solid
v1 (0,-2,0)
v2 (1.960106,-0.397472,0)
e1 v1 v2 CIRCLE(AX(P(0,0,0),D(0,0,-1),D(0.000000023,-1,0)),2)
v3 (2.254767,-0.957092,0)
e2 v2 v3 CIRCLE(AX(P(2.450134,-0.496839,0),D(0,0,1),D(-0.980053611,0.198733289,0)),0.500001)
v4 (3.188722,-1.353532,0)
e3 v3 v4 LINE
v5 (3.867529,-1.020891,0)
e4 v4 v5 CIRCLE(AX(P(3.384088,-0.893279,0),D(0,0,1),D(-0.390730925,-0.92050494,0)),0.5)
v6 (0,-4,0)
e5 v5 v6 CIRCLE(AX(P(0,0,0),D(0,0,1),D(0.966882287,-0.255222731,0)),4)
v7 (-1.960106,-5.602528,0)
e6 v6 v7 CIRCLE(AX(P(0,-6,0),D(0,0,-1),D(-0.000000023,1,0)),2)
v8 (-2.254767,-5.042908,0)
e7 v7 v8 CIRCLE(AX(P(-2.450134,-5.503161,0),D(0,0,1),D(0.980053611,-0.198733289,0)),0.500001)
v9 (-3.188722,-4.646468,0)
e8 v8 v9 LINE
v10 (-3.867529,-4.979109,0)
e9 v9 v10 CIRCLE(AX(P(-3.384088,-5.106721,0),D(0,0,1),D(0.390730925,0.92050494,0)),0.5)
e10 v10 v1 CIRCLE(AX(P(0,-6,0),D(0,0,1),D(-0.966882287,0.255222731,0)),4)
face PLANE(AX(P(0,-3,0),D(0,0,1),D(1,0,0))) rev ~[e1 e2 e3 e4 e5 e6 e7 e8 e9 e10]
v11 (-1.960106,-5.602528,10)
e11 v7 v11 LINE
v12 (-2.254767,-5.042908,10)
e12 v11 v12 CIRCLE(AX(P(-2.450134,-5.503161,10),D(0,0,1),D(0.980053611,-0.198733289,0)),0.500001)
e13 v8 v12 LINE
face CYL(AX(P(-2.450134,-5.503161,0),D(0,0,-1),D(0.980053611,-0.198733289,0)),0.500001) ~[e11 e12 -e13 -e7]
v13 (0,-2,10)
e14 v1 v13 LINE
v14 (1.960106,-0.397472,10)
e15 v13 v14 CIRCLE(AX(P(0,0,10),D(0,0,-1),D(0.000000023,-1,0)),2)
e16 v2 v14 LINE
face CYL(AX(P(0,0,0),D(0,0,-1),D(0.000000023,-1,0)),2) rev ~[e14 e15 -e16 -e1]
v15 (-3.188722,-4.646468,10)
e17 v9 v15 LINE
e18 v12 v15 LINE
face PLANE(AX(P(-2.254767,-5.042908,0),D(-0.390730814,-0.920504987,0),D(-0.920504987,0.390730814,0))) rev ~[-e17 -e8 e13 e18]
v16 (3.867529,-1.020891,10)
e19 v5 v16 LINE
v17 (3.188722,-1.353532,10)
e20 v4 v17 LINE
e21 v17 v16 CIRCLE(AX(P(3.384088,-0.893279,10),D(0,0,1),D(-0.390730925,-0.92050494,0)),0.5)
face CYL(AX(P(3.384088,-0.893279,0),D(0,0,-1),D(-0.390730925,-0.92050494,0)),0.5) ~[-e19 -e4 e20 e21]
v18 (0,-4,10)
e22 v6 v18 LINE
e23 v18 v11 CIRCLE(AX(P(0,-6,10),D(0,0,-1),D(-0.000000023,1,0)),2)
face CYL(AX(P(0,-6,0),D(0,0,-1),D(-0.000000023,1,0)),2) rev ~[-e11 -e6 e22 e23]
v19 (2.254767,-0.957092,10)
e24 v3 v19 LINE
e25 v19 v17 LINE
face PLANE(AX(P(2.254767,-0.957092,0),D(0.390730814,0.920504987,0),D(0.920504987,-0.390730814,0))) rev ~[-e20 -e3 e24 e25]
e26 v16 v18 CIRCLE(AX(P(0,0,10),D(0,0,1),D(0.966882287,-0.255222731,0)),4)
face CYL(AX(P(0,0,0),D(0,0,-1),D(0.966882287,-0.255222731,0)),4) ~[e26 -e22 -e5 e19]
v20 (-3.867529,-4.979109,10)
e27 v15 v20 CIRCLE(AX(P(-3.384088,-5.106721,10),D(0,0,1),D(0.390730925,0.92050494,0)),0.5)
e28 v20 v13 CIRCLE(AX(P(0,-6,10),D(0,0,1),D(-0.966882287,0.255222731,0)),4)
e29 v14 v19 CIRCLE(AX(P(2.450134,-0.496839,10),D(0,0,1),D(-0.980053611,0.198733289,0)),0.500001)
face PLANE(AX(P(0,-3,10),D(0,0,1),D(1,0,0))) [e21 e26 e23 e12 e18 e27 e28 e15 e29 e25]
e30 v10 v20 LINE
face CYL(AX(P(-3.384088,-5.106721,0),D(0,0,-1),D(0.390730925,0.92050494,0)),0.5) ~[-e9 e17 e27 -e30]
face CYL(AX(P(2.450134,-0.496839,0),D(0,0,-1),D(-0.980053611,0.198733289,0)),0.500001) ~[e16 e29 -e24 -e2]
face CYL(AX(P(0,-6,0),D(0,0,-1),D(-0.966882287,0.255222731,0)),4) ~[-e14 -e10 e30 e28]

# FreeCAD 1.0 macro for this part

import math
import FreeCAD as App
import Part
import Sketcher
Q = App.Units.Quantity

doc = App.newDocument("Part")
body = doc.addObject("PartDesign::Body", "Body")

# Sketch on XY plane
sketch1 = body.newObject("Sketcher::SketchObject", "Sketch")
sketch1.AttachmentSupport = (doc.getObject("XY_Plane"), [""])
sketch1.MapMode = "FlatFace"
sketch1.addGeometry(Part.ArcOfCircle(Part.Circle(App.Vector(0, 0, 0), App.Vector(0, 0, 1), 2), math.radians(-11), math.radians(270)), False)
sketch1.addGeometry(Part.ArcOfCircle(Part.Circle(App.Vector(2.5, -0.5, 0), App.Vector(0, 0, 1), 0.5), math.radians(169), math.radians(247)), False)
sketch1.addGeometry(Part.LineSegment(App.Vector(2.3, -1, 0), App.Vector(3.2, -1.4, 0)), False)
sketch1.addGeometry(Part.ArcOfCircle(Part.Circle(App.Vector(3.4, -0.9, 0), App.Vector(0, 0, 1), 0.5), math.radians(-113), math.radians(-15)), False)
sketch1.addGeometry(Part.ArcOfCircle(Part.Circle(App.Vector(0, 0, 0), App.Vector(0, 0, 1), 4), math.radians(-15), math.radians(270)), False)
sketch1.addGeometry(Part.ArcOfCircle(Part.Circle(App.Vector(0, -6, 0), App.Vector(0, 0, 1), 2), math.radians(169), math.radians(450)), False)
sketch1.addGeometry(Part.ArcOfCircle(Part.Circle(App.Vector(-2.5, -5.5, 0), App.Vector(0, 0, 1), 0.5), math.radians(-11), math.radians(67)), False)
sketch1.addGeometry(Part.LineSegment(App.Vector(-2.3, -5, 0), App.Vector(-3.2, -4.6, 0)), False)
sketch1.addGeometry(Part.ArcOfCircle(Part.Circle(App.Vector(-3.4, -5.1, 0), App.Vector(0, 0, 1), 0.5), math.radians(67), math.radians(165)), False)
sketch1.addGeometry(Part.ArcOfCircle(Part.Circle(App.Vector(0, -6, 0), App.Vector(0, 0, 1), 4), math.radians(165), math.radians(450)), False)
sketch1.addConstraint(Sketcher.Constraint("Coincident", 0, 1, 1, 1))
sketch1.addConstraint(Sketcher.Constraint("Coincident", 1, 2, 2, 1))
sketch1.addConstraint(Sketcher.Constraint("Tangent", 2, 2, 3, 1))
sketch1.addConstraint(Sketcher.Constraint("Tangent", 3, 2, 4, 1))
sketch1.addConstraint(Sketcher.Constraint("Tangent", 4, 2, 5, 2))
sketch1.addConstraint(Sketcher.Constraint("Coincident", 5, 1, 6, 1))
sketch1.addConstraint(Sketcher.Constraint("Coincident", 6, 2, 7, 1))
sketch1.addConstraint(Sketcher.Constraint("Tangent", 7, 2, 8, 1))
sketch1.addConstraint(Sketcher.Constraint("Tangent", 8, 2, 9, 1))
sketch1.addConstraint(Sketcher.Constraint("Tangent", 9, 2, 0, 2))
sketch1.addConstraint(Sketcher.Constraint("Coincident", 0, 3, -1, 1))
sketch1.addConstraint(Sketcher.Constraint("Coincident", 4, 3, -1, 1))
sketch1.addConstraint(Sketcher.Constraint("Coincident", 9, 3, 5, 3))
sketch1.addConstraint(Sketcher.Constraint("Equal", 1, 3))
sketch1.addConstraint(Sketcher.Constraint("Equal", 0, 5))
sketch1.addConstraint(Sketcher.Constraint("Equal", 3, 6))
sketch1.addConstraint(Sketcher.Constraint("Equal", 6, 8))
sketch1.addConstraint(Sketcher.Constraint("PointOnObject", 5, 3, -2))
sketch1.addConstraint(Sketcher.Constraint("Parallel", 2, 7))
sketch1.addConstraint(Sketcher.Constraint("Equal", 2, 7))
sketch1.addConstraint(Sketcher.Constraint("Radius", 0, Q("2 mm")))
sketch1.addConstraint(Sketcher.Constraint("Radius", 4, Q("4 mm")))
sketch1.addConstraint(Sketcher.Constraint("Radius", 1, Q("0.500001 mm")))
sketch1.addConstraint(Sketcher.Constraint("Angle", 2, Q("-22.99998 deg")))
sketch1.addConstraint(Sketcher.Constraint("DistanceY", 3, 2, 1, 2, Q("0.063799 mm")))
sketch1.addConstraint(Sketcher.Constraint("DistanceY", 6, 2, 8, 2, Q("0.063799 mm")))
sketch1.addConstraint(Sketcher.Constraint("Distance", 2, Q("1.014612 mm")))
sketch1.addConstraint(Sketcher.Constraint("DistanceX", 0, 1, 3, 3, Q("1.423982 mm")))
sketch1.addConstraint(Sketcher.Constraint("DistanceX", 8, 3, 5, 1, Q("1.423982 mm")))
pad1 = body.newObject("PartDesign::Pad", "Pad")
pad1.Profile = sketch1
pad1.Length = 10

doc.recompute()
